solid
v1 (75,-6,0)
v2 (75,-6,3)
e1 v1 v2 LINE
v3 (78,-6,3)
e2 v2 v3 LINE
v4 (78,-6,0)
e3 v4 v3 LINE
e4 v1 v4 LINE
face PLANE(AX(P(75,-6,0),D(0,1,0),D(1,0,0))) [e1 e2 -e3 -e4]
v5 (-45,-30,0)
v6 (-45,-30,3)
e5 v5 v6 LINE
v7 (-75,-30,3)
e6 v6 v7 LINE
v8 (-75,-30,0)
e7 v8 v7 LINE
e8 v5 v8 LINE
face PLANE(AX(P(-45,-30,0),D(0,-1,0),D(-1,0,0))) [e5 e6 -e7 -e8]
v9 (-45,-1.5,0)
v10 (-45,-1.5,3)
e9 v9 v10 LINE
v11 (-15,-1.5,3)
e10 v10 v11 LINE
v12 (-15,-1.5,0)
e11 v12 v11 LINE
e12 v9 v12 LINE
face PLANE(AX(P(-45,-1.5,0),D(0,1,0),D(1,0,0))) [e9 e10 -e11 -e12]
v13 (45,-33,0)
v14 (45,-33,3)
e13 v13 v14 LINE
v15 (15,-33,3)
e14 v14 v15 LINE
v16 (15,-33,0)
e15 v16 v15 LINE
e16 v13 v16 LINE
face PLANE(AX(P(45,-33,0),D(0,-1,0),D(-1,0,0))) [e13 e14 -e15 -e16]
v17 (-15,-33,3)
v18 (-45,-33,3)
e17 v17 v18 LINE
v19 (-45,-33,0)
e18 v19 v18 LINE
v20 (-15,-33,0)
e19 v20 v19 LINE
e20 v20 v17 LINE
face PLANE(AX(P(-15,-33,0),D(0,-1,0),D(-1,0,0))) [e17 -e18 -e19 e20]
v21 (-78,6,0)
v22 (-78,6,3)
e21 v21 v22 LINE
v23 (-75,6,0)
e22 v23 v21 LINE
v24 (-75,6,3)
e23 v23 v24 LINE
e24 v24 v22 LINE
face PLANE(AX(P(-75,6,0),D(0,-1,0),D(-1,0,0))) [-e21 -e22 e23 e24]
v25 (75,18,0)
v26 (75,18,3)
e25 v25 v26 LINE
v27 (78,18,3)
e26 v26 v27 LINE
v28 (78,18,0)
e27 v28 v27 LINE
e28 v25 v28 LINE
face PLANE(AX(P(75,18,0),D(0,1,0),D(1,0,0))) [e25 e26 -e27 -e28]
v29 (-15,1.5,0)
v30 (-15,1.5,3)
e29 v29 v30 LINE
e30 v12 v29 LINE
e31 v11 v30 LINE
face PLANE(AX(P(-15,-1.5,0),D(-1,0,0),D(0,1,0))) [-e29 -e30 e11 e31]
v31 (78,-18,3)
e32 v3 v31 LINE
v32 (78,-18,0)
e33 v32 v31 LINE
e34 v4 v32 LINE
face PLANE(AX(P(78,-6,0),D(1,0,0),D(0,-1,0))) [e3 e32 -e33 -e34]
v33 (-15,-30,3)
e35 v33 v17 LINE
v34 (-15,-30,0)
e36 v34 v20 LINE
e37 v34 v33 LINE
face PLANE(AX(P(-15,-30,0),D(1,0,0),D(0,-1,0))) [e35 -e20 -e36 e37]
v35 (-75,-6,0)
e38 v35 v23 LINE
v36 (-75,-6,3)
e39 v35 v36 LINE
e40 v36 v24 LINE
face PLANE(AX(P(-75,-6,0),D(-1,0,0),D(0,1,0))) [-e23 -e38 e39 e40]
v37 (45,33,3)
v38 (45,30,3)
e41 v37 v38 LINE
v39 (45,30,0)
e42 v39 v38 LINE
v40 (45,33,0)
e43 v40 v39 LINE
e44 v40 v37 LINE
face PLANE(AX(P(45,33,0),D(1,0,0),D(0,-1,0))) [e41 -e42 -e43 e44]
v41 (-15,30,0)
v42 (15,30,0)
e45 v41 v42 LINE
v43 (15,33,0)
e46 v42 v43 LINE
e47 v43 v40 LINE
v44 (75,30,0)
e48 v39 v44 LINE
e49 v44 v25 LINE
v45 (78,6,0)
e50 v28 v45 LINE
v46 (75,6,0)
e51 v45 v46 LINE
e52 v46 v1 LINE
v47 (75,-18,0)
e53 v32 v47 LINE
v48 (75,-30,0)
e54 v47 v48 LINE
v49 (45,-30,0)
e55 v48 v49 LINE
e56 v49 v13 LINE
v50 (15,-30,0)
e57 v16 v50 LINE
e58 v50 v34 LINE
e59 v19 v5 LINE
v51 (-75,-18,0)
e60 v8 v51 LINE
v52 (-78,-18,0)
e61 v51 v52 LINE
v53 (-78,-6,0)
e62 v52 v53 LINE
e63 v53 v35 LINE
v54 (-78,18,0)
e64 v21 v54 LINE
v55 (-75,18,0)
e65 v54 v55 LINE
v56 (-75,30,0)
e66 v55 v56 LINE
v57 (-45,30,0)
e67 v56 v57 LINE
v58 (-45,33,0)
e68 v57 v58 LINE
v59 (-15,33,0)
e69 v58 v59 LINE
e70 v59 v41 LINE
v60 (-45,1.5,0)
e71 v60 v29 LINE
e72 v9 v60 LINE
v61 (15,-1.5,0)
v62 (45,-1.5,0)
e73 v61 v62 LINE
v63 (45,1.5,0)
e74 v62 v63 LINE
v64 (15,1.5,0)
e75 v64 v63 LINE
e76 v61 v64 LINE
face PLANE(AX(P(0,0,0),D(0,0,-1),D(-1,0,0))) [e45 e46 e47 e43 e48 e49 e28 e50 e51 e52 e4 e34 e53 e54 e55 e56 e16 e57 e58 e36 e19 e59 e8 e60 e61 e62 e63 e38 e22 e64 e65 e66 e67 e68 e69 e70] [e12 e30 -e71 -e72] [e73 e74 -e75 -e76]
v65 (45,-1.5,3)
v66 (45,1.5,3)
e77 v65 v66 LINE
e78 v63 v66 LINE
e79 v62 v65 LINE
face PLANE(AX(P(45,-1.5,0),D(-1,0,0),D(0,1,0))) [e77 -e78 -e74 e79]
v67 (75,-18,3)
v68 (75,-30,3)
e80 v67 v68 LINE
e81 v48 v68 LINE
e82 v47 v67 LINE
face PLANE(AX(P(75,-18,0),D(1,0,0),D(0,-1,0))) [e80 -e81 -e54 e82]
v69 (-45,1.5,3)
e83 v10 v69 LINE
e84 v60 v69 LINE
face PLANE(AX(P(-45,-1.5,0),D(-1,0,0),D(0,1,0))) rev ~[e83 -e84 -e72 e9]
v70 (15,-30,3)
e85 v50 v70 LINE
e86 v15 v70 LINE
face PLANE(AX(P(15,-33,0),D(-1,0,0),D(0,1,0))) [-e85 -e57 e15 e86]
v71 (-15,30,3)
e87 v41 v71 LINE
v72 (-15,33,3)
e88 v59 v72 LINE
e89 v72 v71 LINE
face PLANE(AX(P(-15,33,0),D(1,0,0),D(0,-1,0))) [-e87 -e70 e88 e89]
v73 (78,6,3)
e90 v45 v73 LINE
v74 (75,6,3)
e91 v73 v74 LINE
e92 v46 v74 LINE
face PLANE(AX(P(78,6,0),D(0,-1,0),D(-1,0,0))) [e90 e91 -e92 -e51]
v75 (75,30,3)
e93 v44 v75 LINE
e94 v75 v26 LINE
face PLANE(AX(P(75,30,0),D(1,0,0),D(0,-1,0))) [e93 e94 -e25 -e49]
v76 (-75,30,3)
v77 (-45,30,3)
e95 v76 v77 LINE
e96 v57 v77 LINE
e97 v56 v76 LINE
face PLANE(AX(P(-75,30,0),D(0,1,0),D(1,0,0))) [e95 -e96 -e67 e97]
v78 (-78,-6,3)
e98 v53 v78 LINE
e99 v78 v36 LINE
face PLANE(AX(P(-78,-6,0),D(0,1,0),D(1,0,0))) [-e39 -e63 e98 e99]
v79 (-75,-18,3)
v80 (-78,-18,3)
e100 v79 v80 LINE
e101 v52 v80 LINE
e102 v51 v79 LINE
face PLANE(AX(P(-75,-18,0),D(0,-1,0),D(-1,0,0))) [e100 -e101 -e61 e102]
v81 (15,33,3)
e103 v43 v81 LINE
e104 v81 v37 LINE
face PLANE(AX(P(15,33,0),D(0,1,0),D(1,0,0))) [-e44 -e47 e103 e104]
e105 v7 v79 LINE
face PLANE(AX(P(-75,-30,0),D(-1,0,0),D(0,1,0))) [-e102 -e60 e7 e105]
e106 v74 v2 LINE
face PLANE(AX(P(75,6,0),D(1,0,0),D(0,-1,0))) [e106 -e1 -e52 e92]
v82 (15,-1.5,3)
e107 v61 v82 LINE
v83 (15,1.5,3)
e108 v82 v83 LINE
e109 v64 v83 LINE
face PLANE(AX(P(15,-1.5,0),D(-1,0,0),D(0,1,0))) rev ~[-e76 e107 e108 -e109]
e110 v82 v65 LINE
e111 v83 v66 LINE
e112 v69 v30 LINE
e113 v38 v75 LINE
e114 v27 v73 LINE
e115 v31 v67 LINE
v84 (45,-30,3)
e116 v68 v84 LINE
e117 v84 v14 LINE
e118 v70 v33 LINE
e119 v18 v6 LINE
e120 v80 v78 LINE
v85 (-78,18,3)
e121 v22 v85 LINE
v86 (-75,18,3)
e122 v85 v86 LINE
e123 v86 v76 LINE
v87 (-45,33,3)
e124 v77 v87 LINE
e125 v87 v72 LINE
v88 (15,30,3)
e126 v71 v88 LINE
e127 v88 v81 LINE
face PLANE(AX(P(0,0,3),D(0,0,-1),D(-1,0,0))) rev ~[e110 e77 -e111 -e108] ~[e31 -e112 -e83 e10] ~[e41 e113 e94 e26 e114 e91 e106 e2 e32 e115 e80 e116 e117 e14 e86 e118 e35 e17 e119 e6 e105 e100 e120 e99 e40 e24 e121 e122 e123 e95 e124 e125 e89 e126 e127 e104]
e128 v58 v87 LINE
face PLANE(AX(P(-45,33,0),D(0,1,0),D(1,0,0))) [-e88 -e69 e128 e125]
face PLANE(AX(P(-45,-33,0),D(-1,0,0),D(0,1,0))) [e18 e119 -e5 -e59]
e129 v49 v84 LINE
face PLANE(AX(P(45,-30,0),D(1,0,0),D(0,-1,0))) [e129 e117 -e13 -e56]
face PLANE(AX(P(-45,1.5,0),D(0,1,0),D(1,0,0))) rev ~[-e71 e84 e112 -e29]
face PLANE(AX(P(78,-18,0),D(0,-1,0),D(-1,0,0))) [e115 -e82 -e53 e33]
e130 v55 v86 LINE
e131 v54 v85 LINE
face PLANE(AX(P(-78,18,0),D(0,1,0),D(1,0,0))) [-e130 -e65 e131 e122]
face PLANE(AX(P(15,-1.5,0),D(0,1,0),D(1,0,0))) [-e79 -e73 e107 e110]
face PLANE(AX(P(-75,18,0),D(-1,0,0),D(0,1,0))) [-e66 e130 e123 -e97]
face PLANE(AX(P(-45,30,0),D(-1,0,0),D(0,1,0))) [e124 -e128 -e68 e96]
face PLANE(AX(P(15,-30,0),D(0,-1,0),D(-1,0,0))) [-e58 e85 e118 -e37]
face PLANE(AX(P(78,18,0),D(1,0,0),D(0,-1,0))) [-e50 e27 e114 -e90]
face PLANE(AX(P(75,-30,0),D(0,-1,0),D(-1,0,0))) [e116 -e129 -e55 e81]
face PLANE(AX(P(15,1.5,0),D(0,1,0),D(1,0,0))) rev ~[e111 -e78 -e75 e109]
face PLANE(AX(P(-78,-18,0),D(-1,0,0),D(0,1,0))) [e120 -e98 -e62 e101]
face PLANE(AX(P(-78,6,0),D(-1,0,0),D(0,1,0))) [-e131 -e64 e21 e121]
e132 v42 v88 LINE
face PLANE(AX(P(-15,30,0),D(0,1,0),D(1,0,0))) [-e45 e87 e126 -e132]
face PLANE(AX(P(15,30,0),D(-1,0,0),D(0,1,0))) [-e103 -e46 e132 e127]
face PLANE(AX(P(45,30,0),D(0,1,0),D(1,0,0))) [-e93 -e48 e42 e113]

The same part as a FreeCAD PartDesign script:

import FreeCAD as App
import Part
import Sketcher
from FreeCAD import Vector


def add_polygon(sketch, points):
    """Adds a closed chain of lines whose ends are joined by coincident constraints."""
    first, n = sketch.GeometryCount, len(points)
    for a, b in zip(points, points[1:] + points[:1]):
        sketch.addGeometry(Part.LineSegment(App.Vector(*a, 0), App.Vector(*b, 0)), False)
    for i in range(n):
        sketch.addConstraint(Sketcher.Constraint("Coincident", first + i, 2, first + (i + 1) % n, 1))

doc = App.newDocument("Part")
body = doc.addObject("PartDesign::Body", "Body")

sketch1 = doc.addObject("Sketcher::SketchObject", "Sketch")
body.addObject(sketch1)
sketch1.AttachmentSupport = (doc.XY_Plane, [""])
sketch1.MapMode = "FlatFace"
add_polygon(sketch1, [(75, 30), (45, 30), (45, 33), (15, 33), (15, 30), (-15, 30), (-15, 33), (-45, 33), (-45, 30), (-75, 30), (-75, 18), (-78, 18), (-78, 6), (-75, 6), (-75, -6), (-78, -6), (-78, -18), (-75, -18), (-75, -30), (-45, -30), (-45, -33), (-15, -33), (-15, -30), (15, -30), (15, -33), (45, -33), (45, -30), (75, -30), (75, -18), (78, -18), (78, -6), (75, -6), (75, 6), (78, 6), (78, 18), (75, 18)])
add_polygon(sketch1, [(15, -1.5), (15, 1.5), (45, 1.5), (45, -1.5)])
add_polygon(sketch1, [(-45, -1.5), (-45, 1.5), (-15, 1.5), (-15, -1.5)])
sketch1.addConstraint([
    Sketcher.Constraint("Horizontal", 0),
    Sketcher.Constraint("Vertical", 1),
    Sketcher.Constraint("Horizontal", 2),
    Sketcher.Constraint("Vertical", 3),
    Sketcher.Constraint("Horizontal", 4),
    Sketcher.Constraint("Vertical", 5),
    Sketcher.Constraint("Horizontal", 6),
    Sketcher.Constraint("Vertical", 7),
    Sketcher.Constraint("Horizontal", 8),
    Sketcher.Constraint("Vertical", 9),
    Sketcher.Constraint("Horizontal", 10),
    Sketcher.Constraint("Vertical", 11),
    Sketcher.Constraint("Horizontal", 12),
    Sketcher.Constraint("Vertical", 13),
    Sketcher.Constraint("Horizontal", 14),
    Sketcher.Constraint("Vertical", 15),
    Sketcher.Constraint("Horizontal", 16),
    Sketcher.Constraint("Vertical", 17),
    Sketcher.Constraint("Horizontal", 18),
    Sketcher.Constraint("Vertical", 19),
    Sketcher.Constraint("Horizontal", 20),
    Sketcher.Constraint("Vertical", 21),
    Sketcher.Constraint("Horizontal", 22),
    Sketcher.Constraint("Vertical", 23),
    Sketcher.Constraint("Horizontal", 24),
    Sketcher.Constraint("Vertical", 25),
    Sketcher.Constraint("Horizontal", 26),
    Sketcher.Constraint("Vertical", 27),
    Sketcher.Constraint("Horizontal", 28),
    Sketcher.Constraint("Vertical", 29),
    Sketcher.Constraint("Horizontal", 30),
    Sketcher.Constraint("Vertical", 31),
    Sketcher.Constraint("Horizontal", 32),
    Sketcher.Constraint("Vertical", 33),
    Sketcher.Constraint("Horizontal", 34),
    Sketcher.Constraint("Vertical", 35),
    Sketcher.Constraint("Vertical", 36),
    Sketcher.Constraint("Horizontal", 37),
    Sketcher.Constraint("Vertical", 38),
    Sketcher.Constraint("Horizontal", 39),
    Sketcher.Constraint("Vertical", 40),
    Sketcher.Constraint("Horizontal", 41),
    Sketcher.Constraint("Vertical", 42),
    Sketcher.Constraint("Horizontal", 43),
    Sketcher.Constraint("Symmetric", 0, 2, 18, 2, -1, 1),
    Sketcher.Constraint("Symmetric", 2, 2, 20, 2, -1, 1),
    Sketcher.Constraint("Symmetric", 4, 2, 22, 2, -1, 1),
    Sketcher.Constraint("Symmetric", 6, 2, 24, 2, -1, 1),
    Sketcher.Constraint("Symmetric", 8, 2, 26, 2, -1, 1),
    Sketcher.Constraint("Symmetric", 10, 2, 28, 2, -1, 1),
    Sketcher.Constraint("Symmetric", 12, 2, 30, 2, -1, 1),
    Sketcher.Constraint("Symmetric", 14, 2, 32, 2, -1, 1),
    Sketcher.Constraint("Symmetric", 16, 2, 34, 2, -1, 1),
    Sketcher.Constraint("Symmetric", 38, 2, 40, 2, -1, 1),
    Sketcher.Constraint("Symmetric", 36, 2, 42, 2, -1, 1),
    Sketcher.Constraint("Symmetric", 2, 2, 5, 2, -2),
    Sketcher.Constraint("Symmetric", 0, 2, 7, 2, -2),
    Sketcher.Constraint("Symmetric", 16, 2, 27, 2, -2),
    Sketcher.Constraint("Symmetric", 14, 2, 29, 2, -2),
    Sketcher.Constraint("Horizontal", 0, 2, 3, 2),
    Sketcher.Constraint("Horizontal", 37, 2, 40, 2),
    Sketcher.Constraint("Vertical", 9, 2, 12, 2),
    Sketcher.Constraint("Vertical", 23, 2, 36, 2),
    Sketcher.Constraint("Vertical", 25, 2, 37, 2),
    Sketcher.Constraint("Equal", 0, 2),
    Sketcher.Constraint("Equal", 2, 4),
    Sketcher.Constraint("Equal", 34, 1),
    Sketcher.Constraint("Equal", 9, 11),
    Sketcher.Constraint("Equal", 11, 13),
    Sketcher.Constraint("Equal", 25, 36),
    Sketcher.Constraint("DistanceX", 0, 2, 0, 1, 30.0),
    Sketcher.Constraint("DistanceX", 10, 2, 10, 1, 3.0),
    Sketcher.Constraint("DistanceY", 9, 2, 9, 1, 12.0),
])
pad1 = doc.addObject("PartDesign::Pad", "Pad")
body.addObject(pad1)
pad1.Profile = sketch1
pad1.Length = 3

doc.recompute()
